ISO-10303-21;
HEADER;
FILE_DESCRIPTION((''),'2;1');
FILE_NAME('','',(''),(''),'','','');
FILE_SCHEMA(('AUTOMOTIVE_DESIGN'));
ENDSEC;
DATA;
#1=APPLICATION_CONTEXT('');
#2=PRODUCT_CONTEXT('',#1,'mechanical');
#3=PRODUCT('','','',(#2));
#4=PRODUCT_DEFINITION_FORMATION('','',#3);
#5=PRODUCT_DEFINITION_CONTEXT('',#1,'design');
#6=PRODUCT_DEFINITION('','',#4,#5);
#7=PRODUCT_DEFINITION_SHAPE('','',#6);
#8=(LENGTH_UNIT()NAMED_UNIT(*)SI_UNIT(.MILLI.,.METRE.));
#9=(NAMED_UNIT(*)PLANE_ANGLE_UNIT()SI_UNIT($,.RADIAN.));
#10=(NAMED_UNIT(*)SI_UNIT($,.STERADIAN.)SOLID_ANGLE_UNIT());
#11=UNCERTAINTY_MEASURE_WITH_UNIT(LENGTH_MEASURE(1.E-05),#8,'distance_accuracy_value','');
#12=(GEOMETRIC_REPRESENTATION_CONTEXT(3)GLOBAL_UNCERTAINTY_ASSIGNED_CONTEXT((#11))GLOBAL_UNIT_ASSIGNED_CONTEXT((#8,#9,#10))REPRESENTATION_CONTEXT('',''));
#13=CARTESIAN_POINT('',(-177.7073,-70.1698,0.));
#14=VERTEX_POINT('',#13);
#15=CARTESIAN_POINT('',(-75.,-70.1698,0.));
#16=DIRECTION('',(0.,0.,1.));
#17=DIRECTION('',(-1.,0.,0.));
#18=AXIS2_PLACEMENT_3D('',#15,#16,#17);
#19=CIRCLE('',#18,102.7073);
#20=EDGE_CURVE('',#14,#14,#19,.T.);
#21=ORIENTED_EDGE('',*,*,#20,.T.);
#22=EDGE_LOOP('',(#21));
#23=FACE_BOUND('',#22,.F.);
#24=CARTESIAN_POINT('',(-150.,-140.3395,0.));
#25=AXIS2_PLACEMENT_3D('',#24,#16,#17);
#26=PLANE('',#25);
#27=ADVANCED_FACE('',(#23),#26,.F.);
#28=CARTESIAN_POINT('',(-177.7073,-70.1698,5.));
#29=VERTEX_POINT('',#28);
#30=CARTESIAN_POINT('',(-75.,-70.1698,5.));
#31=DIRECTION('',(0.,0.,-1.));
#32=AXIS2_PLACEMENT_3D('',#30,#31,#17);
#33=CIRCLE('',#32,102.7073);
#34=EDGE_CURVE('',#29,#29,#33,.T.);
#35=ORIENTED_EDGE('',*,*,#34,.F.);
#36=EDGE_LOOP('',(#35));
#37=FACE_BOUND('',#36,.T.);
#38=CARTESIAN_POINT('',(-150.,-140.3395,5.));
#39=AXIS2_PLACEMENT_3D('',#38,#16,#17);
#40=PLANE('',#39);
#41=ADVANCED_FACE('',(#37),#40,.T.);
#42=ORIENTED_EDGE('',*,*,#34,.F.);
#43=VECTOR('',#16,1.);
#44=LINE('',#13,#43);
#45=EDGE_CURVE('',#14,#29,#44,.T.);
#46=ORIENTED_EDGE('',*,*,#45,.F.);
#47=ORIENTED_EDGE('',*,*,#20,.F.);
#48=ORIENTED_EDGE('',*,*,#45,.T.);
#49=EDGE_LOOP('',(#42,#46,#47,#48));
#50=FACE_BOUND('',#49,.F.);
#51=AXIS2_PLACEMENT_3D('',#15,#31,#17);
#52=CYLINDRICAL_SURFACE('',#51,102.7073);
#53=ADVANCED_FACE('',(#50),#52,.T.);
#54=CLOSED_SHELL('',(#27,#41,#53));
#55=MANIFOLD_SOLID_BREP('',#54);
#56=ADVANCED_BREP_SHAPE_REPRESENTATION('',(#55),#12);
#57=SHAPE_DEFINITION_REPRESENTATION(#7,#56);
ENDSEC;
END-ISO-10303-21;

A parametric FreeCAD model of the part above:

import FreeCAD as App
import Part
import Sketcher
Q = App.Units.Quantity

doc = App.newDocument("Part")
params = doc.addObject("Spreadsheet::Sheet", "Params")
for row, (alias, value) in enumerate([
    ("pad1_length", "5 mm"),
], start=1):
    params.set(f"A{row}", alias)
    params.set(f"B{row}", "=" + value)
    params.setAlias(f"B{row}", alias)

body = doc.addObject("PartDesign::Body", "Body")

sketch1 = body.newObject("Sketcher::SketchObject", "Sketch")
sketch1.AttachmentSupport = (doc.getObject("XY_Plane"), [""])
sketch1.MapMode = "FlatFace"
sketch1.addGeometry(Part.Circle(App.Vector(-75, -70, 0), App.Vector(0, 0, 1), 103), False)
sketch1.addConstraint([
    Sketcher.Constraint("DistanceX", 0, 3, -1, 1, Q("75 mm")),
    Sketcher.Constraint("Diameter", 0, Q("205.4146 mm")),
    Sketcher.Constraint("DistanceY", 0, 3, -1, 1, Q("70.1698 mm")),
])
pad1 = body.newObject("PartDesign::Pad", "Pad")
pad1.Profile = sketch1
pad1.setExpression("Length", "Params.pad1_length")

doc.recompute()
